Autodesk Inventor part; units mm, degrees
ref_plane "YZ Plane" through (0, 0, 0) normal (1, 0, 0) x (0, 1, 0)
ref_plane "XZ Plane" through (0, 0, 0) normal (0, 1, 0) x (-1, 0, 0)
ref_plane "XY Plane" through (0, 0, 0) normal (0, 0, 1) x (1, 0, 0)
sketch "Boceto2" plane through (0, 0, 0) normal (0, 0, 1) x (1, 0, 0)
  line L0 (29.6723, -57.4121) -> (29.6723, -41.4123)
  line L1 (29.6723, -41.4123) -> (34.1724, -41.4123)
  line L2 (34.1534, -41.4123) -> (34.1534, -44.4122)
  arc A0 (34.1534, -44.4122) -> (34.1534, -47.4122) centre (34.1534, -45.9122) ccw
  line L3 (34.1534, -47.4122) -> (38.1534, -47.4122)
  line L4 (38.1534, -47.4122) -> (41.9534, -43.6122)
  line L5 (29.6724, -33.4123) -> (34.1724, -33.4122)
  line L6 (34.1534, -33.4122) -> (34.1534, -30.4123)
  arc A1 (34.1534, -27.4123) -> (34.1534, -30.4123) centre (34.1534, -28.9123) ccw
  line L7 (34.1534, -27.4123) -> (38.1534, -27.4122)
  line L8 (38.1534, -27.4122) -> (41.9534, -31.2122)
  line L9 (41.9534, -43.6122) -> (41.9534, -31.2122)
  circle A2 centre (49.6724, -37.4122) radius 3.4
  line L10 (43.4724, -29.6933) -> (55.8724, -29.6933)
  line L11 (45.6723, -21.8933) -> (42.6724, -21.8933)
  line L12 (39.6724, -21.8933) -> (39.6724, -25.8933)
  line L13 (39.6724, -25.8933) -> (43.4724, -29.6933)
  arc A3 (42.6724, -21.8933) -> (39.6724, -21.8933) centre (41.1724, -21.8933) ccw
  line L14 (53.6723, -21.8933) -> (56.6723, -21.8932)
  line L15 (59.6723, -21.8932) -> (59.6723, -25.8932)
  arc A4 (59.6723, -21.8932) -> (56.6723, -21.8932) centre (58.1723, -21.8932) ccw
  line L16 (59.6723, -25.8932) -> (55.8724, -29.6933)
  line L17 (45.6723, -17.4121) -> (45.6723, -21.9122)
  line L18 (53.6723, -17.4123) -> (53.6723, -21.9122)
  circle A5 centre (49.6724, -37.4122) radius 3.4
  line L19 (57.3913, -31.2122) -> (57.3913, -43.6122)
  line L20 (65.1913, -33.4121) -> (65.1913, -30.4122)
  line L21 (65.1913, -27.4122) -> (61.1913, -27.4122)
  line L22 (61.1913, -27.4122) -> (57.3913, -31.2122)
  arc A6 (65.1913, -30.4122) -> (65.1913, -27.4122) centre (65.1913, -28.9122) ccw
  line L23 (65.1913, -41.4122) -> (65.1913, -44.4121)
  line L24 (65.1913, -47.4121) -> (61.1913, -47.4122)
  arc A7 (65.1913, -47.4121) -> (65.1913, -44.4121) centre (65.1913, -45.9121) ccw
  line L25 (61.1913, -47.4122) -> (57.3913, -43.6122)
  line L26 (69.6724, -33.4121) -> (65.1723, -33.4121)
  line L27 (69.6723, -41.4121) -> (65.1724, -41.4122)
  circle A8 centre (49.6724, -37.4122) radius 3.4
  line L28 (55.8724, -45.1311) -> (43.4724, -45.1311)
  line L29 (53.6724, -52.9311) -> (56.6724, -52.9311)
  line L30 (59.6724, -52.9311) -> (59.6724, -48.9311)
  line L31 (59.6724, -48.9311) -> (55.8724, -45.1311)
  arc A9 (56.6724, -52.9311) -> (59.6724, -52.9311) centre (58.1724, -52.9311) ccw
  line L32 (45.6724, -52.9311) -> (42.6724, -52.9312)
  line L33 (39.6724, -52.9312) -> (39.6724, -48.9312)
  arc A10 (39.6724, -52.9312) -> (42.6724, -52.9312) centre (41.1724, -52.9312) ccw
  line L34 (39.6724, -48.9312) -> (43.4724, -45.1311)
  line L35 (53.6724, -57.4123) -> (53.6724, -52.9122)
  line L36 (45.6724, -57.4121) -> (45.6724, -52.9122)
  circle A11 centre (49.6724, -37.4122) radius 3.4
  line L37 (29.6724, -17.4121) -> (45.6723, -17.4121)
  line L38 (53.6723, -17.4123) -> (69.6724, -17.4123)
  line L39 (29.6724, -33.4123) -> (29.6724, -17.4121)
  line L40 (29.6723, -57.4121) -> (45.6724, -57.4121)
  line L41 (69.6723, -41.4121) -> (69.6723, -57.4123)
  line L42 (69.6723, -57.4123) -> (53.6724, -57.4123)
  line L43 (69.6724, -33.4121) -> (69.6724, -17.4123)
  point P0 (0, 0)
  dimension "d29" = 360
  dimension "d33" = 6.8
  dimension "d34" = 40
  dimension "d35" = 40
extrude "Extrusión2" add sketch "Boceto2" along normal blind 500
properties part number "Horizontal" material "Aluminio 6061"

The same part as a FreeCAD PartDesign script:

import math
import FreeCAD as App
import Part
import Sketcher

doc = App.newDocument("Part")
body = doc.addObject("PartDesign::Body", "Body")

sketch1 = doc.addObject("Sketcher::SketchObject", "Sketch")
body.addObject(sketch1)
sketch1.AttachmentSupport = (doc.XY_Plane, [""])
sketch1.MapMode = "FlatFace"
sketch1.addGeometry(Part.LineSegment(App.Vector(29.7, -41.4, 0), App.Vector(29.7, -57.4, 0)), False)
sketch1.addGeometry(Part.LineSegment(App.Vector(29.7, -57.4, 0), App.Vector(45.7, -57.4, 0)), False)
sketch1.addGeometry(Part.LineSegment(App.Vector(45.7, -57.4, 0), App.Vector(45.7, -52.9, 0)), False)
sketch1.addGeometry(Part.LineSegment(App.Vector(45.7, -52.9, 0), App.Vector(42.7, -52.9, 0)), False)
sketch1.addGeometry(Part.ArcOfCircle(Part.Circle(App.Vector(41.2, -52.9, 0), App.Vector(0, 0, 1), 1.5), math.radians(180), math.radians(360)), False)
sketch1.addGeometry(Part.LineSegment(App.Vector(39.7, -52.9, 0), App.Vector(39.7, -48.9, 0)), False)
sketch1.addGeometry(Part.LineSegment(App.Vector(39.7, -48.9, 0), App.Vector(43.5, -45.1, 0)), False)
sketch1.addGeometry(Part.LineSegment(App.Vector(43.5, -45.1, 0), App.Vector(55.9, -45.1, 0)), False)
sketch1.addGeometry(Part.LineSegment(App.Vector(55.9, -45.1, 0), App.Vector(59.7, -48.9, 0)), False)
sketch1.addGeometry(Part.LineSegment(App.Vector(59.7, -48.9, 0), App.Vector(59.7, -52.9, 0)), False)
sketch1.addGeometry(Part.ArcOfCircle(Part.Circle(App.Vector(58.2, -52.9, 0), App.Vector(0, 0, 1), 1.5), math.radians(180), math.radians(360)), False)
sketch1.addGeometry(Part.LineSegment(App.Vector(56.7, -52.9, 0), App.Vector(53.7, -52.9, 0)), False)
sketch1.addGeometry(Part.LineSegment(App.Vector(53.7, -52.9, 0), App.Vector(53.7, -57.4, 0)), False)
sketch1.addGeometry(Part.LineSegment(App.Vector(53.7, -57.4, 0), App.Vector(69.7, -57.4, 0)), False)
sketch1.addGeometry(Part.LineSegment(App.Vector(69.7, -57.4, 0), App.Vector(69.7, -41.4, 0)), False)
sketch1.addGeometry(Part.LineSegment(App.Vector(69.7, -41.4, 0), App.Vector(65.2, -41.4, 0)), False)
sketch1.addGeometry(Part.LineSegment(App.Vector(65.2, -41.4, 0), App.Vector(65.2, -44.4, 0)), False)
sketch1.addGeometry(Part.ArcOfCircle(Part.Circle(App.Vector(65.2, -45.9, 0), App.Vector(0, 0, 1), 1.5), math.radians(-90), math.radians(90)), False)
sketch1.addGeometry(Part.LineSegment(App.Vector(65.2, -47.4, 0), App.Vector(61.2, -47.4, 0)), False)
sketch1.addGeometry(Part.LineSegment(App.Vector(61.2, -47.4, 0), App.Vector(57.4, -43.6, 0)), False)
sketch1.addGeometry(Part.LineSegment(App.Vector(57.4, -43.6, 0), App.Vector(57.4, -31.2, 0)), False)
sketch1.addGeometry(Part.LineSegment(App.Vector(57.4, -31.2, 0), App.Vector(61.2, -27.4, 0)), False)
sketch1.addGeometry(Part.LineSegment(App.Vector(61.2, -27.4, 0), App.Vector(65.2, -27.4, 0)), False)
sketch1.addGeometry(Part.ArcOfCircle(Part.Circle(App.Vector(65.2, -28.9, 0), App.Vector(0, 0, 1), 1.5), math.radians(-90), math.radians(90)), False)
sketch1.addGeometry(Part.LineSegment(App.Vector(65.2, -30.4, 0), App.Vector(65.2, -33.4, 0)), False)
sketch1.addGeometry(Part.LineSegment(App.Vector(65.2, -33.4, 0), App.Vector(69.7, -33.4, 0)), False)
sketch1.addGeometry(Part.LineSegment(App.Vector(69.7, -33.4, 0), App.Vector(69.7, -17.4, 0)), False)
sketch1.addGeometry(Part.LineSegment(App.Vector(69.7, -17.4, 0), App.Vector(53.7, -17.4, 0)), False)
sketch1.addGeometry(Part.LineSegment(App.Vector(53.7, -17.4, 0), App.Vector(53.7, -21.9, 0)), False)
sketch1.addGeometry(Part.LineSegment(App.Vector(53.7, -21.9, 0), App.Vector(56.7, -21.9, 0)), False)
sketch1.addGeometry(Part.ArcOfCircle(Part.Circle(App.Vector(58.2, -21.9, 0), App.Vector(0, 0, 1), 1.5), math.radians(0), math.radians(180)), False)
sketch1.addGeometry(Part.LineSegment(App.Vector(59.7, -21.9, 0), App.Vector(59.7, -25.9, 0)), False)
sketch1.addGeometry(Part.LineSegment(App.Vector(59.7, -25.9, 0), App.Vector(55.9, -29.7, 0)), False)
sketch1.addGeometry(Part.LineSegment(App.Vector(55.9, -29.7, 0), App.Vector(43.5, -29.7, 0)), False)
sketch1.addGeometry(Part.LineSegment(App.Vector(43.5, -29.7, 0), App.Vector(39.7, -25.9, 0)), False)
sketch1.addGeometry(Part.LineSegment(App.Vector(39.7, -25.9, 0), App.Vector(39.7, -21.9, 0)), False)
sketch1.addGeometry(Part.ArcOfCircle(Part.Circle(App.Vector(41.2, -21.9, 0), App.Vector(0, 0, 1), 1.5), math.radians(0), math.radians(180)), False)
sketch1.addGeometry(Part.LineSegment(App.Vector(42.7, -21.9, 0), App.Vector(45.7, -21.9, 0)), False)
sketch1.addGeometry(Part.LineSegment(App.Vector(45.7, -21.9, 0), App.Vector(45.7, -17.4, 0)), False)
sketch1.addGeometry(Part.LineSegment(App.Vector(45.7, -17.4, 0), App.Vector(29.7, -17.4, 0)), False)
sketch1.addGeometry(Part.LineSegment(App.Vector(29.7, -17.4, 0), App.Vector(29.7, -33.4, 0)), False)
sketch1.addGeometry(Part.LineSegment(App.Vector(29.7, -33.4, 0), App.Vector(34.2, -33.4, 0)), False)
sketch1.addGeometry(Part.LineSegment(App.Vector(34.2, -33.4, 0), App.Vector(34.2, -30.4, 0)), False)
sketch1.addGeometry(Part.ArcOfCircle(Part.Circle(App.Vector(34.2, -28.9, 0), App.Vector(0, 0, 1), 1.5), math.radians(90), math.radians(270)), False)
sketch1.addGeometry(Part.LineSegment(App.Vector(34.2, -27.4, 0), App.Vector(38.2, -27.4, 0)), False)
sketch1.addGeometry(Part.LineSegment(App.Vector(38.2, -27.4, 0), App.Vector(42, -31.2, 0)), False)
sketch1.addGeometry(Part.LineSegment(App.Vector(42, -31.2, 0), App.Vector(42, -43.6, 0)), False)
sketch1.addGeometry(Part.LineSegment(App.Vector(42, -43.6, 0), App.Vector(38.2, -47.4, 0)), False)
sketch1.addGeometry(Part.LineSegment(App.Vector(38.2, -47.4, 0), App.Vector(34.2, -47.4, 0)), False)
sketch1.addGeometry(Part.ArcOfCircle(Part.Circle(App.Vector(34.2, -45.9, 0), App.Vector(0, 0, 1), 1.5), math.radians(90), math.radians(270)), False)
sketch1.addGeometry(Part.LineSegment(App.Vector(34.2, -44.4, 0), App.Vector(34.2, -41.4, 0)), False)
sketch1.addGeometry(Part.LineSegment(App.Vector(34.2, -41.4, 0), App.Vector(29.7, -41.4, 0)), False)
sketch1.addGeometry(Part.Circle(App.Vector(49.7, -37.4, 0), App.Vector(0, 0, 1), 3.4), False)
sketch1.addConstraint(Sketcher.Constraint("Coincident", 0, 2, 1, 1))
sketch1.addConstraint(Sketcher.Constraint("Coincident", 1, 2, 2, 1))
sketch1.addConstraint(Sketcher.Constraint("Coincident", 2, 2, 3, 1))
sketch1.addConstraint(Sketcher.Constraint("Coincident", 3, 2, 4, 2))
sketch1.addConstraint(Sketcher.Constraint("Tangent", 4, 1, 5, 1))
sketch1.addConstraint(Sketcher.Constraint("Coincident", 5, 2, 6, 1))
sketch1.addConstraint(Sketcher.Constraint("Coincident", 6, 2, 7, 1))
sketch1.addConstraint(Sketcher.Constraint("Coincident", 7, 2, 8, 1))
sketch1.addConstraint(Sketcher.Constraint("Coincident", 8, 2, 9, 1))
sketch1.addConstraint(Sketcher.Constraint("Tangent", 9, 2, 10, 2))
sketch1.addConstraint(Sketcher.Constraint("Coincident", 10, 1, 11, 1))
sketch1.addConstraint(Sketcher.Constraint("Coincident", 11, 2, 12, 1))
sketch1.addConstraint(Sketcher.Constraint("Coincident", 12, 2, 13, 1))
sketch1.addConstraint(Sketcher.Constraint("Coincident", 13, 2, 14, 1))
sketch1.addConstraint(Sketcher.Constraint("Coincident", 14, 2, 15, 1))
sketch1.addConstraint(Sketcher.Constraint("Coincident", 15, 2, 16, 1))
sketch1.addConstraint(Sketcher.Constraint("Coincident", 16, 2, 17, 2))
sketch1.addConstraint(Sketcher.Constraint("Tangent", 17, 1, 18, 1))
sketch1.addConstraint(Sketcher.Constraint("Coincident", 18, 2, 19, 1))
sketch1.addConstraint(Sketcher.Constraint("Coincident", 19, 2, 20, 1))
sketch1.addConstraint(Sketcher.Constraint("Coincident", 20, 2, 21, 1))
sketch1.addConstraint(Sketcher.Constraint("Coincident", 21, 2, 22, 1))
sketch1.addConstraint(Sketcher.Constraint("Tangent", 22, 2, 23, 2))
sketch1.addConstraint(Sketcher.Constraint("Coincident", 23, 1, 24, 1))
sketch1.addConstraint(Sketcher.Constraint("Coincident", 24, 2, 25, 1))
sketch1.addConstraint(Sketcher.Constraint("Coincident", 25, 2, 26, 1))
sketch1.addConstraint(Sketcher.Constraint("Coincident", 26, 2, 27, 1))
sketch1.addConstraint(Sketcher.Constraint("Coincident", 27, 2, 28, 1))
sketch1.addConstraint(Sketcher.Constraint("Coincident", 28, 2, 29, 1))
sketch1.addConstraint(Sketcher.Constraint("Coincident", 29, 2, 30, 2))
sketch1.addConstraint(Sketcher.Constraint("Tangent", 30, 1, 31, 1))
sketch1.addConstraint(Sketcher.Constraint("Coincident", 31, 2, 32, 1))
sketch1.addConstraint(Sketcher.Constraint("Coincident", 32, 2, 33, 1))
sketch1.addConstraint(Sketcher.Constraint("Coincident", 33, 2, 34, 1))
sketch1.addConstraint(Sketcher.Constraint("Coincident", 34, 2, 35, 1))
sketch1.addConstraint(Sketcher.Constraint("Tangent", 35, 2, 36, 2))
sketch1.addConstraint(Sketcher.Constraint("Coincident", 36, 1, 37, 1))
sketch1.addConstraint(Sketcher.Constraint("Coincident", 37, 2, 38, 1))
sketch1.addConstraint(Sketcher.Constraint("Coincident", 38, 2, 39, 1))
sketch1.addConstraint(Sketcher.Constraint("Coincident", 39, 2, 40, 1))
sketch1.addConstraint(Sketcher.Constraint("Coincident", 40, 2, 41, 1))
sketch1.addConstraint(Sketcher.Constraint("Coincident", 41, 2, 42, 1))
sketch1.addConstraint(Sketcher.Constraint("Coincident", 42, 2, 43, 2))
sketch1.addConstraint(Sketcher.Constraint("Tangent", 43, 1, 44, 1))
sketch1.addConstraint(Sketcher.Constraint("Coincident", 44, 2, 45, 1))
sketch1.addConstraint(Sketcher.Constraint("Coincident", 45, 2, 46, 1))
sketch1.addConstraint(Sketcher.Constraint("Coincident", 46, 2, 47, 1))
sketch1.addConstraint(Sketcher.Constraint("Coincident", 47, 2, 48, 1))
sketch1.addConstraint(Sketcher.Constraint("Tangent", 48, 2, 49, 2))
sketch1.addConstraint(Sketcher.Constraint("Coincident", 49, 1, 50, 1))
sketch1.addConstraint(Sketcher.Constraint("Coincident", 50, 2, 51, 1))
sketch1.addConstraint(Sketcher.Constraint("Coincident", 51, 2, 0, 1))
sketch1.addConstraint(Sketcher.Constraint("Vertical", 0))
sketch1.addConstraint(Sketcher.Constraint("Horizontal", 1))
sketch1.addConstraint(Sketcher.Constraint("Vertical", 2))
sketch1.addConstraint(Sketcher.Constraint("Horizontal", 3))
sketch1.addConstraint(Sketcher.Constraint("Vertical", 5))
sketch1.addConstraint(Sketcher.Constraint("Horizontal", 7))
sketch1.addConstraint(Sketcher.Constraint("Vertical", 9))
sketch1.addConstraint(Sketcher.Constraint("Horizontal", 11))
sketch1.addConstraint(Sketcher.Constraint("Vertical", 12))
sketch1.addConstraint(Sketcher.Constraint("Horizontal", 13))
sketch1.addConstraint(Sketcher.Constraint("Vertical", 14))
sketch1.addConstraint(Sketcher.Constraint("Horizontal", 15))
sketch1.addConstraint(Sketcher.Constraint("Vertical", 16))
sketch1.addConstraint(Sketcher.Constraint("Horizontal", 18))
sketch1.addConstraint(Sketcher.Constraint("Vertical", 20))
sketch1.addConstraint(Sketcher.Constraint("Horizontal", 22))
sketch1.addConstraint(Sketcher.Constraint("Vertical", 24))
sketch1.addConstraint(Sketcher.Constraint("Horizontal", 25))
sketch1.addConstraint(Sketcher.Constraint("Vertical", 26))
sketch1.addConstraint(Sketcher.Constraint("Horizontal", 27))
sketch1.addConstraint(Sketcher.Constraint("Vertical", 28))
sketch1.addConstraint(Sketcher.Constraint("Horizontal", 29))
sketch1.addConstraint(Sketcher.Constraint("Vertical", 31))
sketch1.addConstraint(Sketcher.Constraint("Horizontal", 33))
sketch1.addConstraint(Sketcher.Constraint("Vertical", 35))
sketch1.addConstraint(Sketcher.Constraint("Horizontal", 37))
sketch1.addConstraint(Sketcher.Constraint("Vertical", 38))
sketch1.addConstraint(Sketcher.Constraint("Horizontal", 39))
sketch1.addConstraint(Sketcher.Constraint("Vertical", 40))
sketch1.addConstraint(Sketcher.Constraint("Horizontal", 41))
sketch1.addConstraint(Sketcher.Constraint("Vertical", 42))
sketch1.addConstraint(Sketcher.Constraint("Horizontal", 44))
sketch1.addConstraint(Sketcher.Constraint("Vertical", 46))
sketch1.addConstraint(Sketcher.Constraint("Horizontal", 48))
sketch1.addConstraint(Sketcher.Constraint("Vertical", 50))
sketch1.addConstraint(Sketcher.Constraint("Horizontal", 51))
sketch1.addConstraint(Sketcher.Constraint("Equal", 4, 10))
sketch1.addConstraint(Sketcher.Constraint("Equal", 10, 17))
sketch1.addConstraint(Sketcher.Constraint("Equal", 17, 23))
sketch1.addConstraint(Sketcher.Constraint("Equal", 23, 30))
sketch1.addConstraint(Sketcher.Constraint("Equal", 30, 36))
sketch1.addConstraint(Sketcher.Constraint("Equal", 36, 43))
sketch1.addConstraint(Sketcher.Constraint("Equal", 43, 49))
sketch1.addConstraint(Sketcher.Constraint("Perpendicular", 6, 8))
sketch1.addConstraint(Sketcher.Constraint("Parallel", 8, 19))
sketch1.addConstraint(Sketcher.Constraint("Perpendicular", 19, 21))
sketch1.addConstraint(Sketcher.Constraint("Parallel", 21, 32))
sketch1.addConstraint(Sketcher.Constraint("Perpendicular", 32, 34))
sketch1.addConstraint(Sketcher.Constraint("Parallel", 34, 45))
sketch1.addConstraint(Sketcher.Constraint("Perpendicular", 45, 47))
sketch1.addConstraint(Sketcher.Constraint("Horizontal", 4, 3, 10, 3))
sketch1.addConstraint(Sketcher.Constraint("Horizontal", 30, 3, 36, 3))
sketch1.addConstraint(Sketcher.Constraint("Horizontal", 23, 3, 43, 3))
sketch1.addConstraint(Sketcher.Constraint("Horizontal", 17, 3, 49, 3))
sketch1.addConstraint(Sketcher.Constraint("Horizontal", 10, 3, 2, 2))
sketch1.addConstraint(Sketcher.Constraint("Horizontal", 5, 2, 8, 2))
sketch1.addConstraint(Sketcher.Constraint("Horizontal", 9, 2, 10, 1))
sketch1.addConstraint(Sketcher.Constraint("Horizontal", 1, 2, 12, 2))
sketch1.addConstraint(Sketcher.Constraint("Horizontal", 36, 3, 28, 2))
sketch1.addConstraint(Sketcher.Constraint("Horizontal", 31, 2, 34, 2))
sketch1.addConstraint(Sketcher.Constraint("Horizontal", 35, 2, 36, 1))
sketch1.addConstraint(Sketcher.Constraint("Horizontal", 27, 2, 38, 2))
sketch1.addConstraint(Sketcher.Constraint("Horizontal", 25, 2, 40, 2))
sketch1.addConstraint(Sketcher.Constraint("Horizontal", 20, 2, 45, 2))
sketch1.addConstraint(Sketcher.Constraint("Horizontal", 19, 2, 46, 2))
sketch1.addConstraint(Sketcher.Constraint("Horizontal", 15, 2, 50, 2))
sketch1.addConstraint(Sketcher.Constraint("Vertical", 17, 3, 23, 3))
sketch1.addConstraint(Sketcher.Constraint("Vertical", 10, 3, 30, 3))
sketch1.addConstraint(Sketcher.Constraint("Vertical", 4, 3, 36, 3))
sketch1.addConstraint(Sketcher.Constraint("Vertical", 43, 3, 49, 3))
sketch1.addConstraint(Sketcher.Constraint("Vertical", 23, 3, 15, 2))
sketch1.addConstraint(Sketcher.Constraint("Vertical", 18, 2, 21, 2))
sketch1.addConstraint(Sketcher.Constraint("Vertical", 22, 2, 23, 1))
sketch1.addConstraint(Sketcher.Constraint("Vertical", 14, 2, 25, 2))
sketch1.addConstraint(Sketcher.Constraint("Vertical", 12, 2, 27, 2))
sketch1.addConstraint(Sketcher.Constraint("Vertical", 7, 2, 32, 2))
sketch1.addConstraint(Sketcher.Constraint("Vertical", 6, 2, 33, 2))
sketch1.addConstraint(Sketcher.Constraint("Vertical", 2, 2, 37, 2))
sketch1.addConstraint(Sketcher.Constraint("Vertical", 0, 2, 39, 2))
sketch1.addConstraint(Sketcher.Constraint("Vertical", 49, 3, 41, 2))
sketch1.addConstraint(Sketcher.Constraint("Vertical", 48, 2, 49, 1))
sketch1.addConstraint(Sketcher.Constraint("Equal", 3, 11))
sketch1.addConstraint(Sketcher.Constraint("Equal", 1, 13))
sketch1.addConstraint(Sketcher.Constraint("Equal", 25, 41))
sketch1.addConstraint(Sketcher.Constraint("Equal", 22, 44))
sketch1.addConstraint(Sketcher.Constraint("Equal", 39, 0))
sketch1.addConstraint(Sketcher.Constraint("Equal", 51, 2))
sketch1.addConstraint(Sketcher.Constraint("Equal", 48, 5))
sketch1.addConstraint(Sketcher.Constraint("Equal", 37, 16))
sketch1.addConstraint(Sketcher.Constraint("Equal", 33, 20))
sketch1.addConstraint(Sketcher.Constraint("Equal", 16, 24))
sketch1.addConstraint(Sketcher.Constraint("Equal", 0, 26))
sketch1.addConstraint(Sketcher.Constraint("Equal", 12, 28))
sketch1.addConstraint(Sketcher.Constraint("Equal", 9, 31))
sketch1.addConstraint(Sketcher.Constraint("Equal", 8, 19))
sketch1.addConstraint(Sketcher.Constraint("Diameter", 52, 6.8))
sketch1.addConstraint(Sketcher.Constraint("Radius", 4, 1.5))
sketch1.addConstraint(Sketcher.Constraint("DistanceX", 1, 1, 1, 2, 16.0))
sketch1.addConstraint(Sketcher.Constraint("DistanceX", 3, 2, 3, 1, 3.0))
sketch1.addConstraint(Sketcher.Constraint("DistanceX", 18, 2, 18, 1, 4.0))
sketch1.addConstraint(Sketcher.Constraint("DistanceX", 7, 1, 7, 2, 12.4))
sketch1.addConstraint(Sketcher.Constraint("DistanceX", 15, 2, 15, 1, 4.481))
sketch1.addConstraint(Sketcher.Constraint("Distance", 6, 5.374))
sketch1.addConstraint(Sketcher.Constraint("DistanceY", 10, 3, -1, 1, 52.931))
sketch1.addConstraint(Sketcher.Constraint("DistanceX", -1, 1, 4, 3, 41.1724))
sketch1.addConstraint(Sketcher.Constraint("DistanceX", -1, 1, 52, 3, 49.6724))
sketch1.addConstraint(Sketcher.Constraint("DistanceY", 52, 3, -1, 1, 37.4122))
pad1 = doc.addObject("PartDesign::Pad", "Pad")
body.addObject(pad1)
pad1.Profile = sketch1
pad1.Length = 500

doc.recompute()
